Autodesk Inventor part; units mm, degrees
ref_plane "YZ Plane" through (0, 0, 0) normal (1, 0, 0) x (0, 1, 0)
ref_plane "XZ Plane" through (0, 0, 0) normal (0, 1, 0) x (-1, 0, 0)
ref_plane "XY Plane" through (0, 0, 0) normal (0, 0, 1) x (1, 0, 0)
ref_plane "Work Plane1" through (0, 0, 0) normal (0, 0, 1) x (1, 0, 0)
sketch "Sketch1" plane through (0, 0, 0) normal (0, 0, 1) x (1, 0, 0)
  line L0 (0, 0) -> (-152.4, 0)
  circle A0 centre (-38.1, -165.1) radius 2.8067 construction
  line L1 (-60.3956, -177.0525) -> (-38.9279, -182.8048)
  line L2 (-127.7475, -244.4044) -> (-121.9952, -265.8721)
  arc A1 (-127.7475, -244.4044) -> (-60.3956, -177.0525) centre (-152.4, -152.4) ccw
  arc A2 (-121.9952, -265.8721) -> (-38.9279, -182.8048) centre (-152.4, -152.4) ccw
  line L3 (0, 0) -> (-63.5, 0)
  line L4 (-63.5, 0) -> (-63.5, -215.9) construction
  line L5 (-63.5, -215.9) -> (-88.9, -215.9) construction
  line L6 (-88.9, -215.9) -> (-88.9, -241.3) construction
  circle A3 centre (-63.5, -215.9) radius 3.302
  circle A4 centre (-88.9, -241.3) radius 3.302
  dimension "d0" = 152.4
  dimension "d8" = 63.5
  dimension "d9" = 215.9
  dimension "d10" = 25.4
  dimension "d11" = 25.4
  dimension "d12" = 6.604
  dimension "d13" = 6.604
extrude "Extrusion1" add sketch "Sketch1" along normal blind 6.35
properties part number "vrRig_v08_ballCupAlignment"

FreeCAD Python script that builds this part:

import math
import FreeCAD as App
import Part
import Sketcher
Q = App.Units.Quantity

doc = App.newDocument("Part")
body = doc.addObject("PartDesign::Body", "Body")

# Sketch on XY plane
sketch1 = body.newObject("Sketcher::SketchObject", "Sketch")
sketch1.AttachmentSupport = (doc.getObject("XY_Plane"), [""])
sketch1.MapMode = "FlatFace"
sketch1.addGeometry([
    Part.LineSegment(App.Vector(-38.9, -182.8, 0), App.Vector(-60.4, -177.1, 0)),  # 0
    Part.ArcOfCircle(Part.Circle(App.Vector(-152.4, -152.4, 0), App.Vector(0, 0, 1), 95.2), math.radians(-75), math.radians(-15)),  # 1
    Part.LineSegment(App.Vector(-127.7, -244.4, 0), App.Vector(-122, -265.9, 0)),  # 2
    Part.ArcOfCircle(Part.Circle(App.Vector(-152.4, -152.4, 0), App.Vector(0, 0, 1), 117.5), math.radians(-75), math.radians(-15)),  # 3
    Part.Circle(App.Vector(-88.9, -241.3, 0), App.Vector(0, 0, 1), 3.3),  # 4
    Part.Circle(App.Vector(-63.5, -215.9, 0), App.Vector(0, 0, 1), 3.3),  # 5
], False)
sketch1.addConstraint([
    Sketcher.Constraint("Coincident", 0, 2, 1, 2),
    Sketcher.Constraint("Coincident", 1, 1, 2, 1),
    Sketcher.Constraint("Coincident", 2, 2, 3, 1),
    Sketcher.Constraint("Coincident", 3, 2, 0, 1),
    Sketcher.Constraint("Coincident", 3, 3, 1, 3),
    Sketcher.Constraint("Equal", 4, 5),
    Sketcher.Constraint("Diameter", 4, Q("0.26 in")),
    Sketcher.Constraint("DistanceX", 1, 3, -1, 1, Q("6 in")),
    Sketcher.Constraint("DistanceY", 1, 3, -1, 1, Q("6 in")),
    Sketcher.Constraint("DistanceX", 4, 3, 5, 3, Q("1 in")),
    Sketcher.Constraint("DistanceY", 4, 3, 5, 3, Q("1 in")),
    Sketcher.Constraint("DistanceX", 5, 3, -1, 1, Q("2.5 in")),
    Sketcher.Constraint("DistanceY", 5, 3, -1, 1, Q("8.5 in")),
    Sketcher.Constraint("Radius", 1, Q("3.75 in")),
    Sketcher.Constraint("Angle", 0, Q("165 deg")),
    Sketcher.Constraint("Angle", 2, Q("-75 deg")),
    Sketcher.Constraint("Radius", 3, Q("4.625 in")),
    Sketcher.Constraint("DistanceY", 2, 2, -1, 1, Q("10.4674 in")),
    Sketcher.Constraint("DistanceX", 3, 2, -1, 1, Q("1.5326 in")),
])
pad1 = body.newObject("PartDesign::Pad", "Pad")
pad1.Profile = sketch1
pad1.Length = Q("0.25 in")

doc.recompute()
